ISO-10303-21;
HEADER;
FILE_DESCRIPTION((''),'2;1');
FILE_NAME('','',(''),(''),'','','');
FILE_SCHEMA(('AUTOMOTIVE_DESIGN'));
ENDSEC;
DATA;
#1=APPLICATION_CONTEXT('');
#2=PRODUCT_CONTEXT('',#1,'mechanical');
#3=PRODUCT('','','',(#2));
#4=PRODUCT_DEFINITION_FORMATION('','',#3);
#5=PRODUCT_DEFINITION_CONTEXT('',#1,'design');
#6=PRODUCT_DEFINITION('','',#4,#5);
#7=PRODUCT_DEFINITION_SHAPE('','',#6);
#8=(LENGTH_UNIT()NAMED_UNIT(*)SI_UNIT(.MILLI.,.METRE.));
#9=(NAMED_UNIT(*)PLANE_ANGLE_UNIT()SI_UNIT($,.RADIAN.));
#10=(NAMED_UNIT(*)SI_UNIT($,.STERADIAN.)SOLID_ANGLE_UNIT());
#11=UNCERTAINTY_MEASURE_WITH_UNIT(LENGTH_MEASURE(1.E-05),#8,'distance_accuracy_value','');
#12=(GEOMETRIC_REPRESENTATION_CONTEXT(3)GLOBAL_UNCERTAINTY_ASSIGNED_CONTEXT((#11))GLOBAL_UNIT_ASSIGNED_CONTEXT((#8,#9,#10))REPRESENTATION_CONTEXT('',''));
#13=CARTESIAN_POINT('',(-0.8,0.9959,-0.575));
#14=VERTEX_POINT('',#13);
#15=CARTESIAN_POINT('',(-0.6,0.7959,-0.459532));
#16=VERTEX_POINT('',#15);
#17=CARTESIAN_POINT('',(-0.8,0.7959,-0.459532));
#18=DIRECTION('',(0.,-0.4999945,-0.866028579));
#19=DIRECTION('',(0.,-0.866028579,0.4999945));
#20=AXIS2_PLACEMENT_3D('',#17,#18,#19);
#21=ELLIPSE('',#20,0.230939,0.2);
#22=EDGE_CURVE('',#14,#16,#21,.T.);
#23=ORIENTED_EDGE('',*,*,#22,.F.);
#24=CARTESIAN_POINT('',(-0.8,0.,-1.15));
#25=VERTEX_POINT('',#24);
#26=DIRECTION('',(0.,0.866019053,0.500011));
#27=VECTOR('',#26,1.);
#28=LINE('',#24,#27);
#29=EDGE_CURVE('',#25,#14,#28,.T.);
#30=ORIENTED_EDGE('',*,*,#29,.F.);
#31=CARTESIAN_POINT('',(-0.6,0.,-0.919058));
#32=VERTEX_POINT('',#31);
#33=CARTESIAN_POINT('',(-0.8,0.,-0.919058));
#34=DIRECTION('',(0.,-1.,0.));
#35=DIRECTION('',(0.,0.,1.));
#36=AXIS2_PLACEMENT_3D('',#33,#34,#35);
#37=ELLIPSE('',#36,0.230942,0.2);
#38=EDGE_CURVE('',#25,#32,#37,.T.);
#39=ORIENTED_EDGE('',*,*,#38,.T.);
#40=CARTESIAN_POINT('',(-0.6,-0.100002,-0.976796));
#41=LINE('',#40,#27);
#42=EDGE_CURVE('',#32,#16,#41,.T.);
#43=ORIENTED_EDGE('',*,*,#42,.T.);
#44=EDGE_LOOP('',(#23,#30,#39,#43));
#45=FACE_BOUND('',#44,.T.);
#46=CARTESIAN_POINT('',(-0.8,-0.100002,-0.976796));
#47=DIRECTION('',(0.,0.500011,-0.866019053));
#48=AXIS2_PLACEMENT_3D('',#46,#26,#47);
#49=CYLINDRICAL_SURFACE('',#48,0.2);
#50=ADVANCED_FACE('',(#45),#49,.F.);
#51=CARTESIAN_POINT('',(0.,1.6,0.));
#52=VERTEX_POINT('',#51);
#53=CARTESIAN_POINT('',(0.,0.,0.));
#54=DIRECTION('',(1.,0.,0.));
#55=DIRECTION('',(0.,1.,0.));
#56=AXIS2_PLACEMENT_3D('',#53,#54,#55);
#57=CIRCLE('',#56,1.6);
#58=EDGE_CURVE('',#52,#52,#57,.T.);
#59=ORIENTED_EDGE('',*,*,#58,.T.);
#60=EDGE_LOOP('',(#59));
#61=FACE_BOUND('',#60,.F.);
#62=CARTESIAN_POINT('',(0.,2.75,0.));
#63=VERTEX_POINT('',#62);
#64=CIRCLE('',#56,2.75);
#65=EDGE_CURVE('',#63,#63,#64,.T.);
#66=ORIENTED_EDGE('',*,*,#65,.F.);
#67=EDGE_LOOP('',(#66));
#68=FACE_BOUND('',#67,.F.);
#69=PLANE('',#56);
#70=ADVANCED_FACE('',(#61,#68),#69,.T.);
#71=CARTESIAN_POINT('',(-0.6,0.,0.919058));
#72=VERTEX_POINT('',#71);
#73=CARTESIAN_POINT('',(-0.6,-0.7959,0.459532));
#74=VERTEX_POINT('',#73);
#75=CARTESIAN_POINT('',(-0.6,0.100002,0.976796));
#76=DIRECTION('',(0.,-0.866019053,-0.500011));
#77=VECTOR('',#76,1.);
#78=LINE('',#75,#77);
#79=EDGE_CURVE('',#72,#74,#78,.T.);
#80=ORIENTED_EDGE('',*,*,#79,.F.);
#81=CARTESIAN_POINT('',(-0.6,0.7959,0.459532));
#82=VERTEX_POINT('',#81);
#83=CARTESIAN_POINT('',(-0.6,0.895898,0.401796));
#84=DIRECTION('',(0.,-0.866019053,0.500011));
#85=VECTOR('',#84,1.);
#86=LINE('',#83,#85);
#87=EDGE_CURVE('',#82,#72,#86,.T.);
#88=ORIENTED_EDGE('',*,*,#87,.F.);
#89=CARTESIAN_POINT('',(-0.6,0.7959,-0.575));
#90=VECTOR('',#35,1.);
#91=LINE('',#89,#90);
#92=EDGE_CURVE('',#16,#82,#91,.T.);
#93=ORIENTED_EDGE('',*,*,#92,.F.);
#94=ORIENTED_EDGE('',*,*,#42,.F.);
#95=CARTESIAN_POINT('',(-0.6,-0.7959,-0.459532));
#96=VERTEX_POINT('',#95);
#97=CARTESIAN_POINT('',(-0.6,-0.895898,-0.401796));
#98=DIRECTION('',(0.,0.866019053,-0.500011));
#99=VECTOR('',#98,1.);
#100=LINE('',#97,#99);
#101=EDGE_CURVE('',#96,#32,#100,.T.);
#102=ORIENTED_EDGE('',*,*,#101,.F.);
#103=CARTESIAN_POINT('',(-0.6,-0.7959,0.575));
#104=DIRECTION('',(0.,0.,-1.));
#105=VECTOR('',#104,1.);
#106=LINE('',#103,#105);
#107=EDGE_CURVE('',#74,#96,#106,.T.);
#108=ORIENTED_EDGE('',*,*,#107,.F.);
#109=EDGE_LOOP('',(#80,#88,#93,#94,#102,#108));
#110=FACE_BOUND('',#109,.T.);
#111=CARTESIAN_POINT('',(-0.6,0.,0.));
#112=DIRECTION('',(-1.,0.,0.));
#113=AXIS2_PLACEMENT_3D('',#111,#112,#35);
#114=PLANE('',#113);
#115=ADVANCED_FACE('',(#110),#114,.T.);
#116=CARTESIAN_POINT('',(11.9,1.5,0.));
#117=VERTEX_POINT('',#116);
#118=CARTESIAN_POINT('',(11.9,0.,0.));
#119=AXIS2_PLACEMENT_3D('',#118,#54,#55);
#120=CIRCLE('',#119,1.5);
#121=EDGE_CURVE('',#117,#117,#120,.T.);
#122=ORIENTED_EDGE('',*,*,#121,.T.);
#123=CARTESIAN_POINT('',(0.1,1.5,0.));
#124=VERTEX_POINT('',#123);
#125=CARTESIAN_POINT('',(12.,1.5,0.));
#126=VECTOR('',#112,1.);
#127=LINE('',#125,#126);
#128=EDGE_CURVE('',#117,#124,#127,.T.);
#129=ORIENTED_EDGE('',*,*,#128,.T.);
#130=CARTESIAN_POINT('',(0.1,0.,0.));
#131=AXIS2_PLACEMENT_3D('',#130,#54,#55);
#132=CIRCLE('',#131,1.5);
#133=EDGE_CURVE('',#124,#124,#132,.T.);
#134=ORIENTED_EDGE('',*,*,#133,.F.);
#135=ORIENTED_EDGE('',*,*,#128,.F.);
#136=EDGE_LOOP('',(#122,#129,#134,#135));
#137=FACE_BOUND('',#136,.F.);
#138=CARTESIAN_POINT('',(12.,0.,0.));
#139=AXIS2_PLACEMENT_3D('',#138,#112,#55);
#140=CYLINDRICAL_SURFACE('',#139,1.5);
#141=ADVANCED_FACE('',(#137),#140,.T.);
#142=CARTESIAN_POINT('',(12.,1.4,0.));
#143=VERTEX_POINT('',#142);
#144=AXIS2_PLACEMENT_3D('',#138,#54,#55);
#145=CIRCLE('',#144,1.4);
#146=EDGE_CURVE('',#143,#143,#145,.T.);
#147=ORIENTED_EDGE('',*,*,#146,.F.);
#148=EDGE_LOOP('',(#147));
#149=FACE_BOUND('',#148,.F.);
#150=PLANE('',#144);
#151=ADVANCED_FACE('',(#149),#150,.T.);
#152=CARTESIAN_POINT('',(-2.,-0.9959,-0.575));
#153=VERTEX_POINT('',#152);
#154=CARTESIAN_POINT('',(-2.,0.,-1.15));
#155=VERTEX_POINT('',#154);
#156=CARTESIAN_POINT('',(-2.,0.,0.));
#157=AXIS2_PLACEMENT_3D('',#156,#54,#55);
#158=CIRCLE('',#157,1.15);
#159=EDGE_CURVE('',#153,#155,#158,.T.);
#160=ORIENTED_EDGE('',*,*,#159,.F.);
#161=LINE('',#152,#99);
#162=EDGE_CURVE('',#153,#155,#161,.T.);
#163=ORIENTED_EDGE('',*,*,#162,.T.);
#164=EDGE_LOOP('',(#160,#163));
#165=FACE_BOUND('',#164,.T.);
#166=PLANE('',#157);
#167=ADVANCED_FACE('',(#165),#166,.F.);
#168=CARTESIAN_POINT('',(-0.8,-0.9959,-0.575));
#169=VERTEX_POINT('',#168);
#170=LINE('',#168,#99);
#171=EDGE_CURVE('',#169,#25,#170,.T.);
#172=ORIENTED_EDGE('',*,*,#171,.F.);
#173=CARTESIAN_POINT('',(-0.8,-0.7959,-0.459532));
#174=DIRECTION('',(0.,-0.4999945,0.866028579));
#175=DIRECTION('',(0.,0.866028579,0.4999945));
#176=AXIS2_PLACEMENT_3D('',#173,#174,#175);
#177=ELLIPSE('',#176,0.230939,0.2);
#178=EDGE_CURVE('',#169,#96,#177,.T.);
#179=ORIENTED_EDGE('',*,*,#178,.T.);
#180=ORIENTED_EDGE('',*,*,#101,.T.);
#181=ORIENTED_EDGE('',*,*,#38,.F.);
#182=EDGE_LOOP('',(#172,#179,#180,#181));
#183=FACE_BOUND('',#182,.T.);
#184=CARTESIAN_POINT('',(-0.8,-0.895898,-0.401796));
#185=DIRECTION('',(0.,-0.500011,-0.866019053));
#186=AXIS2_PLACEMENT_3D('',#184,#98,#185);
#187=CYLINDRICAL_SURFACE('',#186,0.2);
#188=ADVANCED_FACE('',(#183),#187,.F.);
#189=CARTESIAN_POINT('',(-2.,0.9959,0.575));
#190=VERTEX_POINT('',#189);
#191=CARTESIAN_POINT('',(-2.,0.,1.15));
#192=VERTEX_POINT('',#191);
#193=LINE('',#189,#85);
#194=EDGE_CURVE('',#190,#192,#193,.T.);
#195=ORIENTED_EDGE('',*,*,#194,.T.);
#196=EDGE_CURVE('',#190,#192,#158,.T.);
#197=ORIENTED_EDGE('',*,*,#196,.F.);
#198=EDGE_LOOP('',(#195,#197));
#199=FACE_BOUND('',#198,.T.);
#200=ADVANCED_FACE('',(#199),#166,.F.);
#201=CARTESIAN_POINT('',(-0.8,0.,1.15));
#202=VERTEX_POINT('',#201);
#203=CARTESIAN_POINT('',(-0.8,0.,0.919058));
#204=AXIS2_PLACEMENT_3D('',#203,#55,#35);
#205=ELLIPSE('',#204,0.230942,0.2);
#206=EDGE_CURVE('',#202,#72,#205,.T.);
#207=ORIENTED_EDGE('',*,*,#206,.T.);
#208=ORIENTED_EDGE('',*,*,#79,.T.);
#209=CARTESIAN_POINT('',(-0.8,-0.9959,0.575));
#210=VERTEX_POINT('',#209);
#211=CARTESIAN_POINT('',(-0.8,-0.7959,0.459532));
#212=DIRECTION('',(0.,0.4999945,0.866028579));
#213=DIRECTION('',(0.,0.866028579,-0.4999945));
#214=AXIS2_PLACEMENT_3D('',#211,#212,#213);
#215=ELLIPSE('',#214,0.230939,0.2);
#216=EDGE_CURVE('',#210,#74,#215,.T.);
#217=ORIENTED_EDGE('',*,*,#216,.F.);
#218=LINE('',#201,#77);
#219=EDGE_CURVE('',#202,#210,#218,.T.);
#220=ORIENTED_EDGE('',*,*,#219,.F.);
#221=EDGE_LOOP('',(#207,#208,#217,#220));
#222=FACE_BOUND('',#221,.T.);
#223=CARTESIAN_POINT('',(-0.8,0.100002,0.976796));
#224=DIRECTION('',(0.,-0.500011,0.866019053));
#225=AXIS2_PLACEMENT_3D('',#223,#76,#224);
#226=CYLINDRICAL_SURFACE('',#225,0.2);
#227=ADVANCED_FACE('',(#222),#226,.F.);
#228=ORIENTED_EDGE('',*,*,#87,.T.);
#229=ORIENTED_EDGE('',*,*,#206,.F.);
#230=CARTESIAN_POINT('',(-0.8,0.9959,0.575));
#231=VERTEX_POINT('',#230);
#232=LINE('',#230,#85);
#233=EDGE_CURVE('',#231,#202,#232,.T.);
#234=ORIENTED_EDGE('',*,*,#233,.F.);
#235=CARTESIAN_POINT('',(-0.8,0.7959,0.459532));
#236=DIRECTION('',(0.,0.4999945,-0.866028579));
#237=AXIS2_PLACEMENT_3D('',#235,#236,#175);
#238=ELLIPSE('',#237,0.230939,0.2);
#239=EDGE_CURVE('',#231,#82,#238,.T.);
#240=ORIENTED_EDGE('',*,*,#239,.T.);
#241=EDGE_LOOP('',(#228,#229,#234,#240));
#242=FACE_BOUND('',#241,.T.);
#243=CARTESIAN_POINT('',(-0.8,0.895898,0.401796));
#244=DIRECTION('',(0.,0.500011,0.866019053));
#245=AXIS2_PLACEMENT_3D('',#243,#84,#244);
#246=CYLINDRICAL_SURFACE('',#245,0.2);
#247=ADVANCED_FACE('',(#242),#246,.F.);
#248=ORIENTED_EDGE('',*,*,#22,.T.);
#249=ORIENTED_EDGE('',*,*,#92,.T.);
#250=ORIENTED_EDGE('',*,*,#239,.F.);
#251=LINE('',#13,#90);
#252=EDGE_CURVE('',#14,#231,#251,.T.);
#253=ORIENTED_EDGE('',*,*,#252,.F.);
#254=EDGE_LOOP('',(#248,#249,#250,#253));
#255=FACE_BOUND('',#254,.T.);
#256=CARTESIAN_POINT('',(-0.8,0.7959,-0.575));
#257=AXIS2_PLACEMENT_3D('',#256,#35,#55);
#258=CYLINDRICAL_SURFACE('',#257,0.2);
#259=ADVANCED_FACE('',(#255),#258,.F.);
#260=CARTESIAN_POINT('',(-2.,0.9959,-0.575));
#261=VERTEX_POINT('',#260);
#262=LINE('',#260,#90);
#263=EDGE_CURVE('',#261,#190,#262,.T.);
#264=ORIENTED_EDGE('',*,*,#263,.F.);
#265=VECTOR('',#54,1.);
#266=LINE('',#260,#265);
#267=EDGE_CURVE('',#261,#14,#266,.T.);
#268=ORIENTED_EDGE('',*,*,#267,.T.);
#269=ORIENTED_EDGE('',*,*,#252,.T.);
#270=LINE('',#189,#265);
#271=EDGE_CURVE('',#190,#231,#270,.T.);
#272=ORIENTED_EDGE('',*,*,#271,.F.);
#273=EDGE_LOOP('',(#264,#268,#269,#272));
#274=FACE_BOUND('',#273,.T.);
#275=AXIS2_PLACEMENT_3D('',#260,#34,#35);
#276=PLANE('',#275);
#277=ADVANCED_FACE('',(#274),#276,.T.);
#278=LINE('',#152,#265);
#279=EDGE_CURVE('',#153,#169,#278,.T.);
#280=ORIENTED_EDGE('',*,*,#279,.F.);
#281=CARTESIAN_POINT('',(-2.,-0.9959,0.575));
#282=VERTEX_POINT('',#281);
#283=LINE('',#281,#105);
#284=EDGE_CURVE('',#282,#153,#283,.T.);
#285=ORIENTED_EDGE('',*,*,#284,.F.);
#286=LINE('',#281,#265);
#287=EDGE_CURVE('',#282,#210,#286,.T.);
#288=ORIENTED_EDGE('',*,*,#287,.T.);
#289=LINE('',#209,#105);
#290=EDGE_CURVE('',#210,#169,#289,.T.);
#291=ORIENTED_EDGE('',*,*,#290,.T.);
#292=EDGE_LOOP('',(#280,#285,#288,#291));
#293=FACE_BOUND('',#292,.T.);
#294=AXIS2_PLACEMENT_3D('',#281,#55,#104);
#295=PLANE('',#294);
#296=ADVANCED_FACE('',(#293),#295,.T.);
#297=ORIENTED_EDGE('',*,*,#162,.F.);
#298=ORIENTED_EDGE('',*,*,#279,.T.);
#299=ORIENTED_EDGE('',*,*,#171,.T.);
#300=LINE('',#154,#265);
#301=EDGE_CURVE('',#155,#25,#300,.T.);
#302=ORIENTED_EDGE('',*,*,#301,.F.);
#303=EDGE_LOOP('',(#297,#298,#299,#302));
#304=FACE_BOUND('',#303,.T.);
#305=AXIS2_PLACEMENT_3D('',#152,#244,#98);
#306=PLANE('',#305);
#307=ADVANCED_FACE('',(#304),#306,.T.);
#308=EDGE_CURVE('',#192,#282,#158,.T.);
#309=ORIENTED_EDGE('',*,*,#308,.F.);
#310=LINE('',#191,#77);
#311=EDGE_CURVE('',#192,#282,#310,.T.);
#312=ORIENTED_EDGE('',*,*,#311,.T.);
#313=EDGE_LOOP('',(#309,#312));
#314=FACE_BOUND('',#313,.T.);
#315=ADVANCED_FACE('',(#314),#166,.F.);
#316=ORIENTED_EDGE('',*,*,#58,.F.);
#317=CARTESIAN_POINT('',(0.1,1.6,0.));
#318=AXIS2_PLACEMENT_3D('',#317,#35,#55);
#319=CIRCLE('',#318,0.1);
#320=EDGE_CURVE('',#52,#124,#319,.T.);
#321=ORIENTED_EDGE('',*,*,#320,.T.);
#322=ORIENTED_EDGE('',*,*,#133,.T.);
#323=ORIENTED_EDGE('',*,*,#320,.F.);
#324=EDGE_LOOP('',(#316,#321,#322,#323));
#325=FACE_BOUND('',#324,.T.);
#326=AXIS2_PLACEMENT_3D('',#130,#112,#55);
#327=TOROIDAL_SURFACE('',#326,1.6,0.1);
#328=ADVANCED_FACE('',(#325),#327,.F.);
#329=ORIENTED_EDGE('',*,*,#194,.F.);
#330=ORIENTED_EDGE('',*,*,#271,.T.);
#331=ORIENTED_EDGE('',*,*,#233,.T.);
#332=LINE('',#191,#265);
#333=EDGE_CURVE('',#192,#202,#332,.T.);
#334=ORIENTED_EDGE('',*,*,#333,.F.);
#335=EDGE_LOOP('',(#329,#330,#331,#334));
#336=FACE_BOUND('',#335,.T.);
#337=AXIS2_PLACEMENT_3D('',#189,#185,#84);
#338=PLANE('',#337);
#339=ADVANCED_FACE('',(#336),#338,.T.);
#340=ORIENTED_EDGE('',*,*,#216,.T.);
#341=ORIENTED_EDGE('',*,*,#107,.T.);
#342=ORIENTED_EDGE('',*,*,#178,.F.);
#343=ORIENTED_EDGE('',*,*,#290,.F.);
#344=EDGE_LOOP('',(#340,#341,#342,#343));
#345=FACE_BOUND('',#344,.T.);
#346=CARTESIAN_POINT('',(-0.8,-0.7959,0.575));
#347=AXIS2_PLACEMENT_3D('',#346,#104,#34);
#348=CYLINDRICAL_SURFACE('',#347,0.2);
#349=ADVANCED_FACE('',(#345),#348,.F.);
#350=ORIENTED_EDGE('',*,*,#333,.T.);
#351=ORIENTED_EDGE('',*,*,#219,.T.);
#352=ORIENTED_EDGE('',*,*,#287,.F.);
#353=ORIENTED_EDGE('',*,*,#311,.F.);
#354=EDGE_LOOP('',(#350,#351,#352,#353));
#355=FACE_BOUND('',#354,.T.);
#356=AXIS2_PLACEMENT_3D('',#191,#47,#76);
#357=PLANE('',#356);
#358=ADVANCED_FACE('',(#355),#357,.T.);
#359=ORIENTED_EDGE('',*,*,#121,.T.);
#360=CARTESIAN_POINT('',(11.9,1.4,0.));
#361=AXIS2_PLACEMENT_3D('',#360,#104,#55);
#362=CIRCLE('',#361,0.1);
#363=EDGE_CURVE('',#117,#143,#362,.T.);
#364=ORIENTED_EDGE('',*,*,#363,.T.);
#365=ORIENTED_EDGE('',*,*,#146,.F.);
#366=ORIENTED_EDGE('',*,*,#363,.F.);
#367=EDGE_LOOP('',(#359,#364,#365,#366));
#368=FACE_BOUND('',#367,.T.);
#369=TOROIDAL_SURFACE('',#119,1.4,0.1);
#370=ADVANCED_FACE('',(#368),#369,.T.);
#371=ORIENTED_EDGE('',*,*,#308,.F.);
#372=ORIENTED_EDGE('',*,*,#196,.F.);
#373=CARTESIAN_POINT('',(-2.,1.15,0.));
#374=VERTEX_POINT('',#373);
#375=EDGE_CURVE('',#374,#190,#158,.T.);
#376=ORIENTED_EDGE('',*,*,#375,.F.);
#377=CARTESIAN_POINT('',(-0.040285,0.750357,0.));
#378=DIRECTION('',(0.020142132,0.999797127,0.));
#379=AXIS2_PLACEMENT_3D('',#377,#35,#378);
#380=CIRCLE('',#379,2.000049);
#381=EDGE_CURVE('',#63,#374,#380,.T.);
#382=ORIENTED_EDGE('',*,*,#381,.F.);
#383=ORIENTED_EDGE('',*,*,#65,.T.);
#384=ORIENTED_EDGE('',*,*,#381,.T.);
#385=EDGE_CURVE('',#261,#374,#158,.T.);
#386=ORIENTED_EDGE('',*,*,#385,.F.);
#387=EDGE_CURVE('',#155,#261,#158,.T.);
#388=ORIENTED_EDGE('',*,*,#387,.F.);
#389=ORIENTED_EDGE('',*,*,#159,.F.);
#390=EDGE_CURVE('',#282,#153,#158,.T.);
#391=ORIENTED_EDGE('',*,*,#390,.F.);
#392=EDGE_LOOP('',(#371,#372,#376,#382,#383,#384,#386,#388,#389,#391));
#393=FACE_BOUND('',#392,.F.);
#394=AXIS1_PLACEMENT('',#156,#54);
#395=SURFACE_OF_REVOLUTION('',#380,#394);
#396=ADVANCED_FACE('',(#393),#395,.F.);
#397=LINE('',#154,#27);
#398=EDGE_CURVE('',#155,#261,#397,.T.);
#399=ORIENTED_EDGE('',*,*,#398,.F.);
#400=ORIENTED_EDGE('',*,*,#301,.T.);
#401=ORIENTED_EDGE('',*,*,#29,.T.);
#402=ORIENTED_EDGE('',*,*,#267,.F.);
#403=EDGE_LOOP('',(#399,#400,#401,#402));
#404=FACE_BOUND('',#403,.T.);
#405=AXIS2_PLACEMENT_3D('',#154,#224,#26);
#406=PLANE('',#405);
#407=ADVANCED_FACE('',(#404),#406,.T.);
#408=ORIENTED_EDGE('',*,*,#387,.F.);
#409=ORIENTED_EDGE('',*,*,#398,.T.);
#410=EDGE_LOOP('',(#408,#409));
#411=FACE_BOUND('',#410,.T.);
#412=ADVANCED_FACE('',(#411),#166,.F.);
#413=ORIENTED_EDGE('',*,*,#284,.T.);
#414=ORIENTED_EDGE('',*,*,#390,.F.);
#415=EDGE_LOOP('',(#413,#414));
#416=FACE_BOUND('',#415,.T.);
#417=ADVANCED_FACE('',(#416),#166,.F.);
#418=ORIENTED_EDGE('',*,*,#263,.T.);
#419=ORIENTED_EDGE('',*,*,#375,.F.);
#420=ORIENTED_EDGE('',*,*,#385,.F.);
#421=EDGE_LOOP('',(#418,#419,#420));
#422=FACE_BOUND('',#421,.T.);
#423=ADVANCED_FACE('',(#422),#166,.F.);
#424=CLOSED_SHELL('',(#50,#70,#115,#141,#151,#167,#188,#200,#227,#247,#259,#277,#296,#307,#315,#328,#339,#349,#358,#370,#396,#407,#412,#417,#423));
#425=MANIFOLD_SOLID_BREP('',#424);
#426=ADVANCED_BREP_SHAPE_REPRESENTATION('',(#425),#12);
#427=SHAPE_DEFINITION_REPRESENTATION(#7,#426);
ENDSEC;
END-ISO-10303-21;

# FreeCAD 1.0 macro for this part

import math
import FreeCAD as App
import Part
import Sketcher

V = App.Vector


def edges_at(feature, points):
    """Names of the edges that pass closest to the given points."""
    edges = feature.Shape.Edges
    near = lambda p: min(range(len(edges)), key=lambda i: edges[i].distToShape(Part.Vertex(*p))[0])
    return sorted({f"Edge{near(p) + 1}" for p in points})

doc = App.newDocument("Part")
body = doc.addObject("PartDesign::Body", "Body")

# Sketch on XY plane
sketch1 = body.newObject("Sketcher::SketchObject", "Sketch")
sketch1.AttachmentSupport = (doc.getObject("XY_Plane"), [""])
sketch1.MapMode = "FlatFace"
sketch1.addGeometry(Part.LineSegment(V(12, 1.5, 0), V(0, 1.5, 0)), False)
sketch1.addGeometry(Part.LineSegment(V(0, 1.5, 0), V(0, 2.8, 0)), False)
sketch1.addGeometry(Part.ArcOfCircle(Part.Circle(V(0, 0.8, 0), V(0, 0, 1), 2), math.radians(89), math.radians(168)), False)
sketch1.addGeometry(Part.LineSegment(V(-2, 1.1, 0), V(-2, 0, 0)), False)
sketch1.addGeometry(Part.LineSegment(V(-2, 0, 0), V(12, 0, 0)), False)
sketch1.addGeometry(Part.LineSegment(V(12, 0, 0), V(12, 1.5, 0)), False)
sketch1.addConstraint(Sketcher.Constraint("Coincident", 0, 2, 1, 1))
sketch1.addConstraint(Sketcher.Constraint("Coincident", 1, 2, 2, 1))
sketch1.addConstraint(Sketcher.Constraint("Coincident", 2, 2, 3, 1))
sketch1.addConstraint(Sketcher.Constraint("Coincident", 3, 2, 4, 1))
sketch1.addConstraint(Sketcher.Constraint("Coincident", 4, 2, 5, 1))
sketch1.addConstraint(Sketcher.Constraint("Coincident", 5, 2, 0, 1))
sketch1.addConstraint(Sketcher.Constraint("Horizontal", 0))
sketch1.addConstraint(Sketcher.Constraint("Vertical", 1))
sketch1.addConstraint(Sketcher.Constraint("Vertical", 3))
sketch1.addConstraint(Sketcher.Constraint("Horizontal", 4))
sketch1.addConstraint(Sketcher.Constraint("Vertical", 5))
sketch1.addConstraint(Sketcher.Constraint("PointOnObject", 0, 2, -2))
sketch1.addConstraint(Sketcher.Constraint("PointOnObject", 3, 2, -1))
sketch1.addConstraint(Sketcher.Constraint("Radius", 2, 2.0))
sketch1.addConstraint(Sketcher.Constraint("DistanceX", 0, 2, 0, 1, 12.0))
sketch1.addConstraint(Sketcher.Constraint("DistanceY", 5, 1, 5, 2, 1.5))
sketch1.addConstraint(Sketcher.Constraint("DistanceX", 2, 2, -1, 1, 2.0))
sketch1.addConstraint(Sketcher.Constraint("DistanceY", 3, 2, 3, 1, 1.15))
sketch1.addConstraint(Sketcher.Constraint("DistanceY", -1, 1, 1, 2, 2.75))
revolution = body.newObject("PartDesign::Revolution", "Revolution")
revolution.Profile = sketch1
revolution.ReferenceAxis = (sketch1, ["H_Axis"])
revolution.Angle = 360

# Sketch on YZ plane
sketch2 = body.newObject("Sketcher::SketchObject", "Sketch001")
sketch2.AttachmentSupport = (doc.getObject("YZ_Plane"), [""])
sketch2.MapMode = "FlatFace"
sketch2.AttachmentOffset = App.Placement(V(0, 0, -2), App.Rotation())
sketch2.addGeometry(Part.LineSegment(V(-1, 0.6, 0), V(0, 1.1, 0)), False)
sketch2.addGeometry(Part.LineSegment(V(0, 1.1, 0), V(1, 0.6, 0)), False)
sketch2.addGeometry(Part.LineSegment(V(1, 0.6, 0), V(1, -0.6, 0)), False)
sketch2.addGeometry(Part.LineSegment(V(1, -0.6, 0), V(0, -1.1, 0)), False)
sketch2.addGeometry(Part.LineSegment(V(0, -1.1, 0), V(-1, -0.6, 0)), False)
sketch2.addGeometry(Part.LineSegment(V(-1, -0.6, 0), V(-1, 0.6, 0)), False)
sketch2.addConstraint(Sketcher.Constraint("Coincident", 0, 2, 1, 1))
sketch2.addConstraint(Sketcher.Constraint("Coincident", 1, 2, 2, 1))
sketch2.addConstraint(Sketcher.Constraint("Coincident", 2, 2, 3, 1))
sketch2.addConstraint(Sketcher.Constraint("Coincident", 3, 2, 4, 1))
sketch2.addConstraint(Sketcher.Constraint("Coincident", 4, 2, 5, 1))
sketch2.addConstraint(Sketcher.Constraint("Coincident", 5, 2, 0, 1))
sketch2.addConstraint(Sketcher.Constraint("Vertical", 2))
sketch2.addConstraint(Sketcher.Constraint("Vertical", 5))
sketch2.addConstraint(Sketcher.Constraint("Symmetric", 0, 2, 3, 2, -1, 1))
sketch2.addConstraint(Sketcher.Constraint("Symmetric", 1, 2, 4, 2, -1, 1))
sketch2.addConstraint(Sketcher.Constraint("PointOnObject", 0, 2, -2))
sketch2.addConstraint(Sketcher.Constraint("Parallel", 0, 3))
sketch2.addConstraint(Sketcher.Constraint("Horizontal", 2, 2, 4, 2))
sketch2.addConstraint(Sketcher.Constraint("DistanceY", 2, 2, 2, 1, 1.15))
sketch2.addConstraint(Sketcher.Constraint("Distance", 0, 1.15))
sketch2.addConstraint(Sketcher.Constraint("DistanceY", -1, 1, 0, 2, 1.15))
pocket1 = body.newObject("PartDesign::Pocket", "Pocket")
pocket1.Profile = sketch2
pocket1.Length = 1.4
pocket1.Reversed = True
doc.recompute()

fillet = body.newObject("PartDesign::Fillet", "Fillet")
fillet.Base = (pocket1, edges_at(pocket1, [
    (-0.6, 0.996, 0),
    (-0.6, 0.498, 0.863),
    (-0.6, 0.498, -0.863),
    (-0.6, -0.498, -0.863),
    (-0.6, -0.996, 0),
    (-0.6, -0.498, 0.863),
]))
fillet.Radius = 0.2
doc.recompute()

fillet2 = body.newObject("PartDesign::Fillet", "Fillet001")
fillet2.Base = (fillet, edges_at(fillet, [(0, -1.5, 0)]))
fillet2.Radius = 0.1
doc.recompute()

fillet3 = body.newObject("PartDesign::Fillet", "Fillet002")
fillet3.Base = (fillet2, edges_at(fillet2, [(12, -1.5, 0)]))
fillet3.Radius = 0.1

doc.recompute()
